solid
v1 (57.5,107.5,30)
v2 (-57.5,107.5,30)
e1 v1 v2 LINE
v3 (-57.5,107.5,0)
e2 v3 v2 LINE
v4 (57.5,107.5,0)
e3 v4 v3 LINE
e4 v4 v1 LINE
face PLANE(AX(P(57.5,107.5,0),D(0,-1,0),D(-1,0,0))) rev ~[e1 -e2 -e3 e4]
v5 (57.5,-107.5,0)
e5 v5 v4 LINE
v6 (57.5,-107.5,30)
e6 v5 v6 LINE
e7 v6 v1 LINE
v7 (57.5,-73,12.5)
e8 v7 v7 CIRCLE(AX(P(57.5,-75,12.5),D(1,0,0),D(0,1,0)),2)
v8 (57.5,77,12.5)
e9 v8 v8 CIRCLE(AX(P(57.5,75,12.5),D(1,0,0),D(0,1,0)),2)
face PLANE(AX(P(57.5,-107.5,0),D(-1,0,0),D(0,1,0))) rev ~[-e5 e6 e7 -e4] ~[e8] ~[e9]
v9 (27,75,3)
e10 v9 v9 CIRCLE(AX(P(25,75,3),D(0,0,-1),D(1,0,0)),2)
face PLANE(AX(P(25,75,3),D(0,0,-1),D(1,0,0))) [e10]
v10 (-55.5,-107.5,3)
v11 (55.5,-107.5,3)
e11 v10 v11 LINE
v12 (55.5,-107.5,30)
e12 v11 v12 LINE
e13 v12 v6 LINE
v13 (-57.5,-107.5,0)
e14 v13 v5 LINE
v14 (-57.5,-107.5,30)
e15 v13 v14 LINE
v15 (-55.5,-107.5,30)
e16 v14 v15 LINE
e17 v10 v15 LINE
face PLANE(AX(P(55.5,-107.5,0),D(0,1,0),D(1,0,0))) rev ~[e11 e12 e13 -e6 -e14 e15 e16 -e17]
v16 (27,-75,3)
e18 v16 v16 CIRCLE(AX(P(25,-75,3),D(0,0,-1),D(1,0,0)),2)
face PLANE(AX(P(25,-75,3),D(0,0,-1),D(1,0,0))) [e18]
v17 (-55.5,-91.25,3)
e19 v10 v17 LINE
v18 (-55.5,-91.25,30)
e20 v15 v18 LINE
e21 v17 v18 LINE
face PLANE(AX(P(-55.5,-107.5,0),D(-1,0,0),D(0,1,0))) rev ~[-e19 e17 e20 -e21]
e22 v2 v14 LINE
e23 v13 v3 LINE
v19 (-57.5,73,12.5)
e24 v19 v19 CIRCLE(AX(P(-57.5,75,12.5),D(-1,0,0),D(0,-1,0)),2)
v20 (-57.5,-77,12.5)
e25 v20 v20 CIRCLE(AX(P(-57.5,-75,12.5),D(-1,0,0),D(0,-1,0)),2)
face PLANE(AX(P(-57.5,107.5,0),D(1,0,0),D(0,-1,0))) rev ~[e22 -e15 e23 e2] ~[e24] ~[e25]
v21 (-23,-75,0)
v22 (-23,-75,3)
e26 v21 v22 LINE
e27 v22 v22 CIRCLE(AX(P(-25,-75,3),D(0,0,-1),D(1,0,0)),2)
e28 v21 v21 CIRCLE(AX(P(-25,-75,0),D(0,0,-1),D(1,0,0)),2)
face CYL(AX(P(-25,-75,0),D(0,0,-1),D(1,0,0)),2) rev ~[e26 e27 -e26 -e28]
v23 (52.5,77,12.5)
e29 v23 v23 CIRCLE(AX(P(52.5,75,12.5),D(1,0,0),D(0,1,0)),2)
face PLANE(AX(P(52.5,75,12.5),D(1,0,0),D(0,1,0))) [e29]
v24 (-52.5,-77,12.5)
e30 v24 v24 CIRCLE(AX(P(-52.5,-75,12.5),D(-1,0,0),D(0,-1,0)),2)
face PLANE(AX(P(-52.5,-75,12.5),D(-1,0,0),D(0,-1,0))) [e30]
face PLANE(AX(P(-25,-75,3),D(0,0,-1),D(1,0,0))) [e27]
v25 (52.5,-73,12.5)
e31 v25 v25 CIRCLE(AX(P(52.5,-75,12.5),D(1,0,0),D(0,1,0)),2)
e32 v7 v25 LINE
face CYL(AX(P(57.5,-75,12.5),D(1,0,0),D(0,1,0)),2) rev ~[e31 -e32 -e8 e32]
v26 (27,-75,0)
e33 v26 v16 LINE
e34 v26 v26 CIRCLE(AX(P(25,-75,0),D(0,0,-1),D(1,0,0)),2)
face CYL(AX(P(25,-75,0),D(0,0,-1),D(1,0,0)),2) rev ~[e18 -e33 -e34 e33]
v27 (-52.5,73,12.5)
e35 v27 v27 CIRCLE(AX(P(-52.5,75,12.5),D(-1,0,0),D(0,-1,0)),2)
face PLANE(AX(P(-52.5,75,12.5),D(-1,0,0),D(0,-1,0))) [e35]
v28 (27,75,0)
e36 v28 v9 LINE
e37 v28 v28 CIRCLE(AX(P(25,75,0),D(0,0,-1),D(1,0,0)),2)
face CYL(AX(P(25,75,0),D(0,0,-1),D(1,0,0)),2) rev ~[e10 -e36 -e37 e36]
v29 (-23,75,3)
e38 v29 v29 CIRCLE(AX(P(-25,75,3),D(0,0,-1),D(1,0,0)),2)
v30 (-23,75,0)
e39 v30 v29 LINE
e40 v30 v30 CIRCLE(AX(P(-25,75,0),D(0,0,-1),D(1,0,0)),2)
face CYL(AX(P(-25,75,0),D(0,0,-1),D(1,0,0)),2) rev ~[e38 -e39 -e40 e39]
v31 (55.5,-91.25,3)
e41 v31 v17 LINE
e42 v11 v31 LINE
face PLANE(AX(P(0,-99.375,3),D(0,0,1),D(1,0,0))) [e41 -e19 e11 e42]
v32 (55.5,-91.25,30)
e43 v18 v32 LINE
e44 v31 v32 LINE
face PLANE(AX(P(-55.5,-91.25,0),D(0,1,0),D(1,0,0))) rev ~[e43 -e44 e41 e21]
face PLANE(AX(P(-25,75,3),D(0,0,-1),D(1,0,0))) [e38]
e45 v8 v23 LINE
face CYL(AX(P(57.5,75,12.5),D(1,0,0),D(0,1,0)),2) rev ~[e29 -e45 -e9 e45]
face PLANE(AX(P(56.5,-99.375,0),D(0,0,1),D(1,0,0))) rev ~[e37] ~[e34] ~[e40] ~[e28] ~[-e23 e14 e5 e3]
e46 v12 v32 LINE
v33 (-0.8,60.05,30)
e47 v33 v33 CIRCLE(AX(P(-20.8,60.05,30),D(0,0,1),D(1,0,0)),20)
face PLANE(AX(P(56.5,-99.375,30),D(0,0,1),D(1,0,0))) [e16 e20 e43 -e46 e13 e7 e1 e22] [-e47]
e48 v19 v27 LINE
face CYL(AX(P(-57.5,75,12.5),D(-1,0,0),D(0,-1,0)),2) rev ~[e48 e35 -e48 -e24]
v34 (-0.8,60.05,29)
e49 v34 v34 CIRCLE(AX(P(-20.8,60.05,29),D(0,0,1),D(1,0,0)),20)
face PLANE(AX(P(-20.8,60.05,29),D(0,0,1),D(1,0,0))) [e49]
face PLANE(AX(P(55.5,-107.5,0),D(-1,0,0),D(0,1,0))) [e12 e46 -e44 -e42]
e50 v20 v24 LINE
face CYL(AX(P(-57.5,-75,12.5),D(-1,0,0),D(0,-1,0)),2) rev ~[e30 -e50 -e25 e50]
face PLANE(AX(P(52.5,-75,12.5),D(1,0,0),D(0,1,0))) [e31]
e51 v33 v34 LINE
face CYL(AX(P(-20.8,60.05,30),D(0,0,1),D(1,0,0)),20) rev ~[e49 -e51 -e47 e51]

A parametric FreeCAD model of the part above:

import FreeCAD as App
import Part
import Sketcher

V = App.Vector


def add_polygon(sketch, points):
    """Adds a closed chain of lines whose ends are joined by coincident constraints."""
    first, n = sketch.GeometryCount, len(points)
    for a, b in zip(points, points[1:] + points[:1]):
        sketch.addGeometry(Part.LineSegment(App.Vector(*a, 0), App.Vector(*b, 0)), False)
    for i in range(n):
        sketch.addConstraint(Sketcher.Constraint("Coincident", first + i, 2, first + (i + 1) % n, 1))

doc = App.newDocument("Part")
params = doc.addObject("Spreadsheet::Sheet", "Params")
for row, (alias, value) in enumerate([
    ("sketch1_width", "111 mm"),
    ("sketch1_width2", "2 mm"),
    ("sketch1_height", "16.25 mm"),
    ("pad1_length", "3 mm"),
    ("sketch2_width", "2 mm"),
    ("sketch2_width2", "115 mm"),
    ("sketch2_height", "215 mm"),
    ("sketch2_height2", "16.25 mm"),
    ("pad2_length", "30 mm"),
    ("sketch3_diameter", "4 mm"),
    ("pocket1_length", "5 mm"),
    ("sketch4_diameter", "4 mm"),
    ("pocket2_length", "3 mm"),
    ("sketch5_diameter", "4 mm"),
    ("pocket3_length", "5 mm"),
    ("sketch6_diameter", "40 mm"),
    ("pocket4_length", "1 mm"),
], start=1):
    params.set(f"A{row}", alias)
    params.set(f"B{row}", "=" + value)
    params.setAlias(f"B{row}", alias)

body = doc.addObject("PartDesign::Body", "Body")

# Sketch on XY plane
sketch1 = body.newObject("Sketcher::SketchObject", "Sketch")
sketch1.AttachmentSupport = (doc.getObject("XY_Plane"), [""])
sketch1.MapMode = "FlatFace"
add_polygon(sketch1, [(-55.5, -91.2), (-55.5, -107.5), (55.5, -107.5), (55.5, -91.2), (57.5, -91.2), (57.5, 107.5), (-57.5, 107.5), (-57.5, -91.2)])  # lines 0-7
sketch1.addConstraint([
    Sketcher.Constraint("Vertical", 0),
    Sketcher.Constraint("Horizontal", 1),
    Sketcher.Constraint("Vertical", 2),
    Sketcher.Constraint("Horizontal", 3),
    Sketcher.Constraint("Vertical", 4),
    Sketcher.Constraint("Horizontal", 5),
    Sketcher.Constraint("Vertical", 6),
    Sketcher.Constraint("Horizontal", 7),
    Sketcher.Constraint("Symmetric", 3, 2, 6, 2, -2),
    Sketcher.Constraint("Equal", 3, 7),
    Sketcher.Constraint("DistanceX", 1, 1, 1, 2, 111.0),
    Sketcher.Constraint("DistanceX", 3, 1, 3, 2, 2.0),
    Sketcher.Constraint("DistanceY", 1, 2, 4, 2, 215.0),
    Sketcher.Constraint("DistanceY", 0, 2, 0, 1, 16.25),
    Sketcher.Constraint("DistanceY", 0, 2, -1, 1, 107.5),
])
sketch1.setExpression("Constraints[18]", "Params.sketch1_width")
sketch1.setExpression("Constraints[19]", "Params.sketch1_width2")
sketch1.setExpression("Constraints[21]", "Params.sketch1_height")
pad1 = body.newObject("PartDesign::Pad", "Pad")
pad1.Profile = sketch1
pad1.setExpression("Length", "Params.pad1_length")

# Sketch on XY plane
sketch2 = body.newObject("Sketcher::SketchObject", "Sketch001")
sketch2.AttachmentSupport = (doc.getObject("XY_Plane"), [""])
sketch2.MapMode = "FlatFace"
add_polygon(sketch2, [(55.5, -91.2), (55.5, -107.5), (57.5, -107.5), (57.5, 107.5), (-57.5, 107.5), (-57.5, -107.5), (-55.5, -107.5), (-55.5, -91.2)])  # lines 0-7
sketch2.addConstraint([
    Sketcher.Constraint("Vertical", 0),
    Sketcher.Constraint("Horizontal", 1),
    Sketcher.Constraint("Vertical", 2),
    Sketcher.Constraint("Horizontal", 3),
    Sketcher.Constraint("Vertical", 4),
    Sketcher.Constraint("Horizontal", 5),
    Sketcher.Constraint("Vertical", 6),
    Sketcher.Constraint("Horizontal", 7),
    Sketcher.Constraint("Symmetric", 1, 2, 3, 2, -1, 1),
    Sketcher.Constraint("Symmetric", 0, 2, 5, 2, -2),
    Sketcher.Constraint("DistanceX", 1, 1, 1, 2, 2.0),
    Sketcher.Constraint("DistanceX", 3, 2, 3, 1, 115.0),
    Sketcher.Constraint("DistanceY", 2, 1, 2, 2, 215.0),
    Sketcher.Constraint("DistanceY", 0, 2, 0, 1, 16.25),
])
sketch2.setExpression("Constraints[18]", "Params.sketch2_width")
sketch2.setExpression("Constraints[19]", "Params.sketch2_width2")
sketch2.setExpression("Constraints[20]", "Params.sketch2_height")
sketch2.setExpression("Constraints[21]", "Params.sketch2_height2")
pad2 = body.newObject("PartDesign::Pad", "Pad001")
pad2.Profile = sketch2
pad2.setExpression("Length", "Params.pad2_length")

# Sketch on YZ plane
sketch3 = body.newObject("Sketcher::SketchObject", "Sketch002")
sketch3.AttachmentSupport = (doc.getObject("YZ_Plane"), [""])
sketch3.MapMode = "FlatFace"
sketch3.AttachmentOffset = App.Placement(V(0, 0, 57.5), App.Rotation())
sketch3.addGeometry([
    Part.Circle(V(-75, 12.5, 0), V(0, 0, 1), 2),
    Part.Circle(V(75, 12.5, 0), V(0, 0, 1), 2),
], False)
sketch3.addConstraint([
    Sketcher.Constraint("Equal", 0, 1),
    Sketcher.Constraint("Symmetric", 0, 3, 1, 3, -2),
    Sketcher.Constraint("Diameter", 0, 4.0),
    Sketcher.Constraint("DistanceX", 0, 3, -1, 1, 75.0),
    Sketcher.Constraint("DistanceY", -1, 1, 0, 3, 12.5),
])
sketch3.setExpression("Constraints[2]", "Params.sketch3_diameter")
pocket1 = body.newObject("PartDesign::Pocket", "Pocket")
pocket1.Profile = sketch3
pocket1.setExpression("Length", "Params.pocket1_length")

# Sketch on XY plane
sketch4 = body.newObject("Sketcher::SketchObject", "Sketch003")
sketch4.AttachmentSupport = (doc.getObject("XY_Plane"), [""])
sketch4.MapMode = "FlatFace"
sketch4.addGeometry([
    Part.Circle(V(25, -75, 0), V(0, 0, 1), 2),
    Part.Circle(V(25, 75, 0), V(0, 0, 1), 2),
    Part.Circle(V(-25, -75, 0), V(0, 0, 1), 2),
    Part.Circle(V(-25, 75, 0), V(0, 0, 1), 2),
], False)
sketch4.addConstraint([
    Sketcher.Constraint("Equal", 0, 1),
    Sketcher.Constraint("Equal", 1, 2),
    Sketcher.Constraint("Equal", 2, 3),
    Sketcher.Constraint("Symmetric", 1, 3, 2, 3, -1, 1),
    Sketcher.Constraint("Symmetric", 0, 3, 3, 3, -1, 1),
    Sketcher.Constraint("Symmetric", 0, 3, 2, 3, -2),
    Sketcher.Constraint("Diameter", 0, 4.0),
    Sketcher.Constraint("DistanceX", -1, 1, 0, 3, 25.0),
    Sketcher.Constraint("DistanceY", 0, 3, -1, 1, 75.0),
])
sketch4.setExpression("Constraints[6]", "Params.sketch4_diameter")
pocket2 = body.newObject("PartDesign::Pocket", "Pocket001")
pocket2.Profile = sketch4
pocket2.setExpression("Length", "Params.pocket2_length")
pocket2.Reversed = True

# Sketch on YZ plane
sketch5 = body.newObject("Sketcher::SketchObject", "Sketch004")
sketch5.AttachmentSupport = (doc.getObject("YZ_Plane"), [""])
sketch5.MapMode = "FlatFace"
sketch5.AttachmentOffset = App.Placement(V(0, 0, -57.5), App.Rotation())
sketch5.addGeometry([
    Part.Circle(V(75, 12.5, 0), V(0, 0, 1), 2),
    Part.Circle(V(-75, 12.5, 0), V(0, 0, 1), 2),
], False)
sketch5.addConstraint([
    Sketcher.Constraint("Equal", 0, 1),
    Sketcher.Constraint("Symmetric", 0, 3, 1, 3, -2),
    Sketcher.Constraint("Diameter", 0, 4.0),
    Sketcher.Constraint("DistanceX", -1, 1, 0, 3, 75.0),
    Sketcher.Constraint("DistanceY", -1, 1, 0, 3, 12.5),
])
sketch5.setExpression("Constraints[2]", "Params.sketch5_diameter")
pocket3 = body.newObject("PartDesign::Pocket", "Pocket002")
pocket3.Profile = sketch5
pocket3.setExpression("Length", "Params.pocket3_length")
pocket3.Reversed = True

# Sketch on XY plane
sketch6 = body.newObject("Sketcher::SketchObject", "Sketch005")
sketch6.AttachmentSupport = (doc.getObject("XY_Plane"), [""])
sketch6.MapMode = "FlatFace"
sketch6.AttachmentOffset = App.Placement(V(0, 0, 30), App.Rotation())
sketch6.addGeometry(Part.Circle(V(-21, 60, 0), V(0, 0, 1), 20), False)
sketch6.addConstraint([
    Sketcher.Constraint("Diameter", 0, 40.0),
    Sketcher.Constraint("DistanceX", 0, 3, -1, 1, 20.8),
    Sketcher.Constraint("DistanceY", -1, 1, 0, 3, 60.05),
])
sketch6.setExpression("Constraints[0]", "Params.sketch6_diameter")
pocket4 = body.newObject("PartDesign::Pocket", "Pocket003")
pocket4.Profile = sketch6
pocket4.setExpression("Length", "Params.pocket4_length")

doc.recompute()
